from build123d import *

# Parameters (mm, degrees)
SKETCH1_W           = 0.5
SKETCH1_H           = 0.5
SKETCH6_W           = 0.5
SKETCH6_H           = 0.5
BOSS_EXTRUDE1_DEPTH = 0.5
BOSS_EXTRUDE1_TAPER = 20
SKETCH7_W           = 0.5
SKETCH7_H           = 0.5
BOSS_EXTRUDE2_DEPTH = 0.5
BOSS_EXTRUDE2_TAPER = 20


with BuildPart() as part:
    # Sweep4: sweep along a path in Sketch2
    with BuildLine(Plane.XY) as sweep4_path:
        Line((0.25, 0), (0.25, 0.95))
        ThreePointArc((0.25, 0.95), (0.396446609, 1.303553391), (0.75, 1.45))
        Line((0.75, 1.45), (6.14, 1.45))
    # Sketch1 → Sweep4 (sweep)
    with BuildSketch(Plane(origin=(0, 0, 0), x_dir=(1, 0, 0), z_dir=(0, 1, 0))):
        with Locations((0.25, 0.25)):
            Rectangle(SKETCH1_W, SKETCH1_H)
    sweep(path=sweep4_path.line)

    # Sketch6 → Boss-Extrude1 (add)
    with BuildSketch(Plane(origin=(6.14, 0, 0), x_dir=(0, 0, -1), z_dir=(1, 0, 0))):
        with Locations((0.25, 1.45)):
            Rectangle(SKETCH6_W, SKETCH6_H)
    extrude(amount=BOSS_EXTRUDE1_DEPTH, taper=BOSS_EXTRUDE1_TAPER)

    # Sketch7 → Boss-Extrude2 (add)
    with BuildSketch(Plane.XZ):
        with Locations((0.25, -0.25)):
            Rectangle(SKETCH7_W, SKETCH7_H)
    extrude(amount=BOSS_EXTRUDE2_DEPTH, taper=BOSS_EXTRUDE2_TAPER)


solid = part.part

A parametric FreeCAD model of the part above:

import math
import FreeCAD as App
import Part
import Sketcher
Q = App.Units.Quantity

doc = App.newDocument("Part")
params = doc.addObject("Spreadsheet::Sheet", "Params")
for row, (alias, value) in enumerate([
    ("sketch1_width", "0.5 mm"),
    ("sketch2_radius", "0.5 mm"),
    ("sketch2_width", "5.39 mm"),
    ("sketch2_height", "0.95 mm"),
    ("sketch3_width", "0.5 mm"),
    ("pad1_length", "0.5 mm"),
    ("pad1_taper", "-20 deg"),
    ("sketch4_width", "0.5 mm"),
    ("pad2_length", "0.5 mm"),
    ("pad2_taper", "-20 deg"),
], start=1):
    params.set(f"A{row}", alias)
    params.set(f"B{row}", "=" + value)
    params.setAlias(f"B{row}", alias)

body = doc.addObject("PartDesign::Body", "Body")

# Sketch on XZ plane
sketch1 = body.newObject("Sketcher::SketchObject", "Sketch")
sketch1.AttachmentSupport = (doc.getObject("XZ_Plane"), [""])
sketch1.MapMode = "FlatFace"
sketch1.addGeometry([
    Part.LineSegment(App.Vector(0, -0.5, 0), App.Vector(0, 0, 0)),
    Part.LineSegment(App.Vector(0, 0, 0), App.Vector(0.5, 0, 0)),
    Part.LineSegment(App.Vector(0.5, 0, 0), App.Vector(0.5, -0.5, 0)),
    Part.LineSegment(App.Vector(0.5, -0.5, 0), App.Vector(0, -0.5, 0)),
], False)
sketch1.addConstraint([
    Sketcher.Constraint("Coincident", 0, 2, 1, 1),
    Sketcher.Constraint("Coincident", 1, 2, 2, 1),
    Sketcher.Constraint("Coincident", 2, 2, 3, 1),
    Sketcher.Constraint("Coincident", 3, 2, 0, 1),
    Sketcher.Constraint("Vertical", 0),
    Sketcher.Constraint("Horizontal", 1),
    Sketcher.Constraint("Vertical", 2),
    Sketcher.Constraint("Horizontal", 3),
    Sketcher.Constraint("Coincident", 0, 2, -1, 1),
    Sketcher.Constraint("Equal", 3, 0),
    Sketcher.Constraint("DistanceX", 1, 1, 1, 2, Q("0.5 mm")),
])
sketch1.setExpression("Constraints[10]", "Params.sketch1_width")

# Sketch on XY plane
sketch2 = body.newObject("Sketcher::SketchObject", "Sketch001")
sketch2.AttachmentSupport = (doc.getObject("XY_Plane"), [""])
sketch2.MapMode = "FlatFace"
sketch2.addGeometry([
    Part.LineSegment(App.Vector(0.25, 0, 0), App.Vector(0.25, 0.95, 0)),
    Part.ArcOfCircle(Part.Circle(App.Vector(0.75, 0.95, 0), App.Vector(0, 0, 1), 0.5), math.radians(90), math.radians(180)),
    Part.LineSegment(App.Vector(0.75, 1.45, 0), App.Vector(6.14, 1.45, 0)),
], False)
sketch2.addConstraint([
    Sketcher.Constraint("Tangent", 0, 2, 1, 2),
    Sketcher.Constraint("Tangent", 1, 1, 2, 1),
    Sketcher.Constraint("Vertical", 0),
    Sketcher.Constraint("Horizontal", 2),
    Sketcher.Constraint("PointOnObject", 0, 1, -1),
    Sketcher.Constraint("Radius", 1, Q("0.5 mm")),
    Sketcher.Constraint("DistanceX", 2, 1, 2, 2, Q("5.39 mm")),
    Sketcher.Constraint("DistanceY", 0, 1, 0, 2, Q("0.95 mm")),
    Sketcher.Constraint("DistanceX", -1, 1, 1, 3, Q("0.75 mm")),
])
sketch2.setExpression("Constraints[5]", "Params.sketch2_radius")
sketch2.setExpression("Constraints[6]", "Params.sketch2_width")
sketch2.setExpression("Constraints[7]", "Params.sketch2_height")
doc.recompute()

additivepipe = body.newObject("PartDesign::AdditivePipe", "AdditivePipe")
additivepipe.Profile = sketch1
additivepipe.Spine = (sketch2, ["Edge1", "Edge2", "Edge3"])

# Sketch on YZ plane
sketch3 = body.newObject("Sketcher::SketchObject", "Sketch002")
sketch3.AttachmentSupport = (doc.getObject("YZ_Plane"), [""])
sketch3.MapMode = "FlatFace"
sketch3.AttachmentOffset = App.Placement(App.Vector(0, 0, 6.14), App.Rotation())
sketch3.addGeometry([
    Part.LineSegment(App.Vector(1.7, 0, 0), App.Vector(1.2, 0, 0)),
    Part.LineSegment(App.Vector(1.2, 0, 0), App.Vector(1.2, -0.5, 0)),
    Part.LineSegment(App.Vector(1.2, -0.5, 0), App.Vector(1.7, -0.5, 0)),
    Part.LineSegment(App.Vector(1.7, -0.5, 0), App.Vector(1.7, 0, 0)),
], False)
sketch3.addConstraint([
    Sketcher.Constraint("Coincident", 0, 2, 1, 1),
    Sketcher.Constraint("Coincident", 1, 2, 2, 1),
    Sketcher.Constraint("Coincident", 2, 2, 3, 1),
    Sketcher.Constraint("Coincident", 3, 2, 0, 1),
    Sketcher.Constraint("Horizontal", 0),
    Sketcher.Constraint("Vertical", 1),
    Sketcher.Constraint("Horizontal", 2),
    Sketcher.Constraint("Vertical", 3),
    Sketcher.Constraint("PointOnObject", 0, 2, -1),
    Sketcher.Constraint("Equal", 2, 1),
    Sketcher.Constraint("DistanceX", 0, 2, 0, 1, Q("0.5 mm")),
    Sketcher.Constraint("DistanceX", -1, 1, 0, 2, Q("1.2 mm")),
])
sketch3.setExpression("Constraints[10]", "Params.sketch3_width")
pad1 = body.newObject("PartDesign::Pad", "Pad")
pad1.Profile = sketch3
pad1.setExpression("Length", "Params.pad1_length")
pad1.setExpression("TaperAngle", "Params.pad1_taper")

# Sketch on XZ plane
sketch4 = body.newObject("Sketcher::SketchObject", "Sketch003")
sketch4.AttachmentSupport = (doc.getObject("XZ_Plane"), [""])
sketch4.MapMode = "FlatFace"
sketch4.addGeometry([
    Part.LineSegment(App.Vector(0, 0, 0), App.Vector(0, -0.5, 0)),
    Part.LineSegment(App.Vector(0, -0.5, 0), App.Vector(0.5, -0.5, 0)),
    Part.LineSegment(App.Vector(0.5, -0.5, 0), App.Vector(0.5, 0, 0)),
    Part.LineSegment(App.Vector(0.5, 0, 0), App.Vector(0, 0, 0)),
], False)
sketch4.addConstraint([
    Sketcher.Constraint("Coincident", 0, 2, 1, 1),
    Sketcher.Constraint("Coincident", 1, 2, 2, 1),
    Sketcher.Constraint("Coincident", 2, 2, 3, 1),
    Sketcher.Constraint("Coincident", 3, 2, 0, 1),
    Sketcher.Constraint("Vertical", 0),
    Sketcher.Constraint("Horizontal", 1),
    Sketcher.Constraint("Vertical", 2),
    Sketcher.Constraint("Horizontal", 3),
    Sketcher.Constraint("Coincident", 3, 2, -1, 1),
    Sketcher.Constraint("Equal", 3, 0),
    Sketcher.Constraint("DistanceX", 1, 1, 1, 2, Q("0.5 mm")),
])
sketch4.setExpression("Constraints[10]", "Params.sketch4_width")
pad2 = body.newObject("PartDesign::Pad", "Pad001")
pad2.Profile = sketch4
pad2.setExpression("Length", "Params.pad2_length")
pad2.setExpression("TaperAngle", "Params.pad2_taper")

doc.recompute()
